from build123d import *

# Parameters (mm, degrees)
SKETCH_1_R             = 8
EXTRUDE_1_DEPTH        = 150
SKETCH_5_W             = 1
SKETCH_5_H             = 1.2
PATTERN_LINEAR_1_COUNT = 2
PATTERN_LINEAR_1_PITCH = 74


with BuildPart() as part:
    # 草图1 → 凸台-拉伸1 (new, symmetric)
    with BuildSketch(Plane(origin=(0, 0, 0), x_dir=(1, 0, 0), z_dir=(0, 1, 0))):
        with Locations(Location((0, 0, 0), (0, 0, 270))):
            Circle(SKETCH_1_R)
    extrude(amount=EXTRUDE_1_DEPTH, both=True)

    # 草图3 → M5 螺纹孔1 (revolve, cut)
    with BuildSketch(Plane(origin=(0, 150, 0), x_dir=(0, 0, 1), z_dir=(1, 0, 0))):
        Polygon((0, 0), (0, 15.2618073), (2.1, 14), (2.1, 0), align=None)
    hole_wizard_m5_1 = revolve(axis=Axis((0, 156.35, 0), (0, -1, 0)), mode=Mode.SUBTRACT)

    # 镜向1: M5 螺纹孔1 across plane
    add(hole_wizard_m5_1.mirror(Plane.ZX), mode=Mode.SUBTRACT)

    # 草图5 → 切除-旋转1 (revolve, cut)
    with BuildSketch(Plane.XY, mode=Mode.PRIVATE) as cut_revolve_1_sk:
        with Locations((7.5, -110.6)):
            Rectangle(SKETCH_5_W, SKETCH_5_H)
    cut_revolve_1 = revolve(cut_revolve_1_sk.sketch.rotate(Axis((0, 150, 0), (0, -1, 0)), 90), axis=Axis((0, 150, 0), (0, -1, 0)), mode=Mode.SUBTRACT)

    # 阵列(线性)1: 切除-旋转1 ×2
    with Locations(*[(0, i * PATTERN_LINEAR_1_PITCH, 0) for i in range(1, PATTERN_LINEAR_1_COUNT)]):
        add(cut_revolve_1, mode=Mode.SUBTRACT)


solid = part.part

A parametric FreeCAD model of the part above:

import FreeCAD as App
import Part
import Sketcher

V = App.Vector
Q = App.Units.Quantity


def add_polygon(sketch, points):
    """Adds a closed chain of lines whose ends are joined by coincident constraints."""
    first, n = sketch.GeometryCount, len(points)
    for a, b in zip(points, points[1:] + points[:1]):
        sketch.addGeometry(Part.LineSegment(App.Vector(*a, 0), App.Vector(*b, 0)), False)
    for i in range(n):
        sketch.addConstraint(Sketcher.Constraint("Coincident", first + i, 2, first + (i + 1) % n, 1))

doc = App.newDocument("Part")
body = doc.addObject("PartDesign::Body", "Body")

# Sketch on XZ plane
sketch1 = body.newObject("Sketcher::SketchObject", "Sketch")
sketch1.AttachmentSupport = (doc.getObject("XZ_Plane"), [""])
sketch1.MapMode = "FlatFace"
sketch1.addGeometry(Part.Circle(V(0, 0, 0), V(0, 0, 1), 8), False)
sketch1.addConstraint(Sketcher.Constraint("Coincident", 0, 3, -1, 1))
sketch1.addConstraint(Sketcher.Constraint("Diameter", 0, 16.0))
pad1 = body.newObject("PartDesign::Pad", "Pad")
pad1.Profile = sketch1
pad1.Length = 300
pad1.Midplane = True

# Sketch on YZ plane
sketch2 = body.newObject("Sketcher::SketchObject", "Sketch001")
sketch2.AttachmentSupport = (doc.getObject("YZ_Plane"), [""])
sketch2.MapMode = "FlatFace"
add_polygon(sketch2, [(134.7, 0), (150, 0), (150, 2.1), (136, 2.1)])  # lines 0-3
sketch2.addConstraint(Sketcher.Constraint("Horizontal", 0))
sketch2.addConstraint(Sketcher.Constraint("Vertical", 1))
sketch2.addConstraint(Sketcher.Constraint("Horizontal", 2))
sketch2.addConstraint(Sketcher.Constraint("PointOnObject", 0, 2, -1))
sketch2.addConstraint(Sketcher.Constraint("DistanceX", 2, 2, 2, 1, 14.0))
sketch2.addConstraint(Sketcher.Constraint("Angle", 3, Q("-121 deg")))
sketch2.addConstraint(Sketcher.Constraint("DistanceY", 1, 1, 1, 2, 2.1))
sketch2.addConstraint(Sketcher.Constraint("DistanceX", -1, 1, 0, 2, 150.0))
groove = body.newObject("PartDesign::Groove", "Groove")
groove.Profile = sketch2
groove.ReferenceAxis = (sketch2, ["H_Axis"])
groove.Angle = 360
doc.recompute()

mirrored = body.newObject("PartDesign::Mirrored", "Mirrored")
mirrored.Originals = [groove]
mirrored.MirrorPlane = (doc.getObject("XZ_Plane"), [""])
body.Tip = mirrored

# Sketch on XY plane
sketch3 = body.newObject("Sketcher::SketchObject", "Sketch002")
sketch3.AttachmentSupport = (doc.getObject("XY_Plane"), [""])
sketch3.MapMode = "FlatFace"
add_polygon(sketch3, [(7, -110), (7, -111.2), (8, -111.2), (8, -110)])  # lines 0-3
sketch3.addConstraint(Sketcher.Constraint("Vertical", 0))
sketch3.addConstraint(Sketcher.Constraint("Horizontal", 1))
sketch3.addConstraint(Sketcher.Constraint("Vertical", 2))
sketch3.addConstraint(Sketcher.Constraint("Horizontal", 3))
sketch3.addConstraint(Sketcher.Constraint("DistanceX", 1, 1, 1, 2, 1.0))
sketch3.addConstraint(Sketcher.Constraint("DistanceY", 0, 2, 0, 1, 1.2))
sketch3.addConstraint(Sketcher.Constraint("DistanceX", -1, 1, 0, 2, 7.0))
sketch3.addConstraint(Sketcher.Constraint("DistanceY", 2, 2, -1, 1, 110.0))
groove2 = body.newObject("PartDesign::Groove", "Groove001")
groove2.Profile = sketch3
groove2.ReferenceAxis = (sketch3, ["V_Axis"])
groove2.Angle = 360
doc.recompute()

linearpattern = body.newObject("PartDesign::LinearPattern", "LinearPattern")
linearpattern.Originals = [groove2]
linearpattern.Direction = (doc.getObject("Y_Axis"), [""])
linearpattern.Mode = "offset"
linearpattern.Offset = 74
linearpattern.Occurrences = 2
body.Tip = linearpattern

doc.recompute()
